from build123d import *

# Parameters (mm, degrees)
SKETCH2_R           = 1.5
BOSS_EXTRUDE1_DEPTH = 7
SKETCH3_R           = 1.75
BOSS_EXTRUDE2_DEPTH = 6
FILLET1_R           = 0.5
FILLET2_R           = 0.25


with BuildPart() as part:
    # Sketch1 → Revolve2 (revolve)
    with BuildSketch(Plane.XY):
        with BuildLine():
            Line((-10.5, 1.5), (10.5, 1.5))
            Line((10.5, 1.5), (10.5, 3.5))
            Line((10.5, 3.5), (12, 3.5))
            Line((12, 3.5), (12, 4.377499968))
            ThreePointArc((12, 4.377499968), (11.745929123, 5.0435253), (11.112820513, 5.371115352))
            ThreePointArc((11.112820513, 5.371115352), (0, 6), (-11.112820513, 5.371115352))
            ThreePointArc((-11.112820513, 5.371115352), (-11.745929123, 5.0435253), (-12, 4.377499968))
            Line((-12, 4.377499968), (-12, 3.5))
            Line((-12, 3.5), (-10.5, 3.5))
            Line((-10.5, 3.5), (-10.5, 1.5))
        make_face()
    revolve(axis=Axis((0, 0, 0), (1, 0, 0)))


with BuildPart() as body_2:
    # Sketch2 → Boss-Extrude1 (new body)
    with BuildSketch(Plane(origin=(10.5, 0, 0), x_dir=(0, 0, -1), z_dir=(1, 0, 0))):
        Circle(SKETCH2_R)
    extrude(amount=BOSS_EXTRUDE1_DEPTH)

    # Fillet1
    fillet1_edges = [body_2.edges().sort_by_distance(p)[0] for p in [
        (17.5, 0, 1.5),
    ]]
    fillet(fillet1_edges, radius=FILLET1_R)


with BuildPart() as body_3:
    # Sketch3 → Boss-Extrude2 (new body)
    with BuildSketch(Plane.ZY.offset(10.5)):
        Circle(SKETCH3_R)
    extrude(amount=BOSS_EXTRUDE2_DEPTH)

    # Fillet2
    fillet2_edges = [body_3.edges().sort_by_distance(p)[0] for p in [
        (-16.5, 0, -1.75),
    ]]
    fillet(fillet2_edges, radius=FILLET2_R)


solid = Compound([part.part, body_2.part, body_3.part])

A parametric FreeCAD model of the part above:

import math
import FreeCAD as App
import Part
import Sketcher


def edges_at(feature, points):
    """Names of the edges that pass closest to the given points."""
    edges = feature.Shape.Edges
    near = lambda p: min(range(len(edges)), key=lambda i: edges[i].distToShape(Part.Vertex(*p))[0])
    return sorted({f"Edge{near(p) + 1}" for p in points})

doc = App.newDocument("Part")
params = doc.addObject("Spreadsheet::Sheet", "Params")
for row, (alias, value) in enumerate([
    ("sketch1_radius", "1 mm"),
    ("sketch1_radius2", "98.5 mm"),
    ("sketch1_width", "21 mm"),
    ("sketch1_height", "2 mm"),
    ("sketch1_width2", "1.5 mm"),
    ("revolution_angle", "360 deg"),
    ("sketch2_diameter", "3 mm"),
    ("pad1_length", "7 mm"),
    ("fillet_radius", "0.5 mm"),
    ("sketch3_diameter", "3.5 mm"),
    ("pad2_length", "6 mm"),
    ("fillet2_radius", "0.25 mm"),
], start=1):
    params.set(f"A{row}", alias)
    params.set(f"B{row}", "=" + value)
    params.setAlias(f"B{row}", alias)

body = doc.addObject("PartDesign::Body", "Body")

# Sketch on XY plane
sketch1 = body.newObject("Sketcher::SketchObject", "Sketch")
sketch1.AttachmentSupport = (doc.getObject("XY_Plane"), [""])
sketch1.MapMode = "FlatFace"
sketch1.addGeometry([
    Part.LineSegment(App.Vector(-10.5, 1.5, 0), App.Vector(10.5, 1.5, 0)),  # 0
    Part.LineSegment(App.Vector(10.5, 1.5, 0), App.Vector(10.5, 3.5, 0)),  # 1
    Part.LineSegment(App.Vector(10.5, 3.5, 0), App.Vector(12, 3.5, 0)),  # 2
    Part.LineSegment(App.Vector(12, 3.5, 0), App.Vector(12, 4.4, 0)),  # 3
    Part.ArcOfCircle(Part.Circle(App.Vector(11, 4.4, 0), App.Vector(0, 0, 1), 1), math.radians(0), math.radians(84)),  # 4
    Part.ArcOfCircle(Part.Circle(App.Vector(0, -92.5, 0), App.Vector(0, 0, 1), 98.5), math.radians(83.52), math.radians(96.48)),  # 5
    Part.ArcOfCircle(Part.Circle(App.Vector(-11, 4.4, 0), App.Vector(0, 0, 1), 1), math.radians(96), math.radians(180)),  # 6
    Part.LineSegment(App.Vector(-12, 4.4, 0), App.Vector(-12, 3.5, 0)),  # 7
    Part.LineSegment(App.Vector(-12, 3.5, 0), App.Vector(-10.5, 3.5, 0)),  # 8
    Part.LineSegment(App.Vector(-10.5, 3.5, 0), App.Vector(-10.5, 1.5, 0)),  # 9
], False)
sketch1.addConstraint([
    Sketcher.Constraint("Coincident", 0, 2, 1, 1),
    Sketcher.Constraint("Coincident", 1, 2, 2, 1),
    Sketcher.Constraint("Coincident", 2, 2, 3, 1),
    Sketcher.Constraint("Tangent", 3, 2, 4, 1),
    Sketcher.Constraint("Tangent", 4, 2, 5, 1),
    Sketcher.Constraint("Tangent", 5, 2, 6, 1),
    Sketcher.Constraint("Tangent", 6, 2, 7, 1),
    Sketcher.Constraint("Coincident", 7, 2, 8, 1),
    Sketcher.Constraint("Coincident", 8, 2, 9, 1),
    Sketcher.Constraint("Coincident", 9, 2, 0, 1),
    Sketcher.Constraint("Horizontal", 0),
    Sketcher.Constraint("Vertical", 1),
    Sketcher.Constraint("Horizontal", 2),
    Sketcher.Constraint("Vertical", 3),
    Sketcher.Constraint("Vertical", 7),
    Sketcher.Constraint("Horizontal", 8),
    Sketcher.Constraint("Vertical", 9),
    Sketcher.Constraint("Equal", 4, 6),
    Sketcher.Constraint("Symmetric", 4, 3, 6, 3, -2),
    Sketcher.Constraint("Symmetric", 1, 2, 8, 2, -2),
    Sketcher.Constraint("Radius", 4, 1.0),
    Sketcher.Constraint("Radius", 5, 98.5),
    Sketcher.Constraint("DistanceX", 0, 1, 0, 2, 21.0),
    Sketcher.Constraint("DistanceY", 1, 1, 1, 2, 2.0),
    Sketcher.Constraint("DistanceX", 2, 1, 2, 2, 1.5),
    Sketcher.Constraint("DistanceY", 5, 3, 0, 2, 94.0),
    Sketcher.Constraint("DistanceY", 5, 3, -1, 1, 92.5),
])
sketch1.setExpression("Constraints[20]", "Params.sketch1_radius")
sketch1.setExpression("Constraints[21]", "Params.sketch1_radius2")
sketch1.setExpression("Constraints[22]", "Params.sketch1_width")
sketch1.setExpression("Constraints[23]", "Params.sketch1_height")
sketch1.setExpression("Constraints[24]", "Params.sketch1_width2")
revolution = body.newObject("PartDesign::Revolution", "Revolution")
revolution.Profile = sketch1
revolution.ReferenceAxis = (sketch1, ["H_Axis"])
revolution.setExpression("Angle", "Params.revolution_angle")
body2 = doc.addObject("PartDesign::Body", "Body001")

# Sketch on YZ plane
sketch2 = body2.newObject("Sketcher::SketchObject", "Sketch001")
sketch2.AttachmentSupport = (doc.getObject("YZ_Plane001"), [""])
sketch2.MapMode = "FlatFace"
sketch2.AttachmentOffset = App.Placement(App.Vector(0, 0, 10.5), App.Rotation())
sketch2.addGeometry(Part.Circle(App.Vector(0, 0, 0), App.Vector(0, 0, 1), 1.5), False)
sketch2.addConstraint([
    Sketcher.Constraint("Coincident", 0, 3, -1, 1),
    Sketcher.Constraint("Diameter", 0, 3.0),
])
sketch2.setExpression("Constraints[1]", "Params.sketch2_diameter")
pad1 = body2.newObject("PartDesign::Pad", "Pad")
pad1.Profile = sketch2
pad1.setExpression("Length", "Params.pad1_length")
doc.recompute()

fillet = body2.newObject("PartDesign::Fillet", "Fillet")
fillet.Base = (pad1, edges_at(pad1, [(17.5, 0, 1.5)]))
fillet.setExpression("Radius", "Params.fillet_radius")
body3 = doc.addObject("PartDesign::Body", "Body002")

# Sketch on YZ plane
sketch3 = body3.newObject("Sketcher::SketchObject", "Sketch002")
sketch3.AttachmentSupport = (doc.getObject("YZ_Plane002"), [""])
sketch3.MapMode = "FlatFace"
sketch3.AttachmentOffset = App.Placement(App.Vector(0, 0, -10.5), App.Rotation())
sketch3.addGeometry(Part.Circle(App.Vector(0, 0, 0), App.Vector(0, 0, 1), 1.8), False)
sketch3.addConstraint([
    Sketcher.Constraint("Coincident", 0, 3, -1, 1),
    Sketcher.Constraint("Diameter", 0, 3.5),
])
sketch3.setExpression("Constraints[1]", "Params.sketch3_diameter")
pad2 = body3.newObject("PartDesign::Pad", "Pad001")
pad2.Profile = sketch3
pad2.setExpression("Length", "Params.pad2_length")
pad2.Reversed = True
doc.recompute()

fillet2 = body3.newObject("PartDesign::Fillet", "Fillet001")
fillet2.Base = (pad2, edges_at(pad2, [(-16.5, 0, -1.75)]))
fillet2.setExpression("Radius", "Params.fillet2_radius")

doc.recompute()
